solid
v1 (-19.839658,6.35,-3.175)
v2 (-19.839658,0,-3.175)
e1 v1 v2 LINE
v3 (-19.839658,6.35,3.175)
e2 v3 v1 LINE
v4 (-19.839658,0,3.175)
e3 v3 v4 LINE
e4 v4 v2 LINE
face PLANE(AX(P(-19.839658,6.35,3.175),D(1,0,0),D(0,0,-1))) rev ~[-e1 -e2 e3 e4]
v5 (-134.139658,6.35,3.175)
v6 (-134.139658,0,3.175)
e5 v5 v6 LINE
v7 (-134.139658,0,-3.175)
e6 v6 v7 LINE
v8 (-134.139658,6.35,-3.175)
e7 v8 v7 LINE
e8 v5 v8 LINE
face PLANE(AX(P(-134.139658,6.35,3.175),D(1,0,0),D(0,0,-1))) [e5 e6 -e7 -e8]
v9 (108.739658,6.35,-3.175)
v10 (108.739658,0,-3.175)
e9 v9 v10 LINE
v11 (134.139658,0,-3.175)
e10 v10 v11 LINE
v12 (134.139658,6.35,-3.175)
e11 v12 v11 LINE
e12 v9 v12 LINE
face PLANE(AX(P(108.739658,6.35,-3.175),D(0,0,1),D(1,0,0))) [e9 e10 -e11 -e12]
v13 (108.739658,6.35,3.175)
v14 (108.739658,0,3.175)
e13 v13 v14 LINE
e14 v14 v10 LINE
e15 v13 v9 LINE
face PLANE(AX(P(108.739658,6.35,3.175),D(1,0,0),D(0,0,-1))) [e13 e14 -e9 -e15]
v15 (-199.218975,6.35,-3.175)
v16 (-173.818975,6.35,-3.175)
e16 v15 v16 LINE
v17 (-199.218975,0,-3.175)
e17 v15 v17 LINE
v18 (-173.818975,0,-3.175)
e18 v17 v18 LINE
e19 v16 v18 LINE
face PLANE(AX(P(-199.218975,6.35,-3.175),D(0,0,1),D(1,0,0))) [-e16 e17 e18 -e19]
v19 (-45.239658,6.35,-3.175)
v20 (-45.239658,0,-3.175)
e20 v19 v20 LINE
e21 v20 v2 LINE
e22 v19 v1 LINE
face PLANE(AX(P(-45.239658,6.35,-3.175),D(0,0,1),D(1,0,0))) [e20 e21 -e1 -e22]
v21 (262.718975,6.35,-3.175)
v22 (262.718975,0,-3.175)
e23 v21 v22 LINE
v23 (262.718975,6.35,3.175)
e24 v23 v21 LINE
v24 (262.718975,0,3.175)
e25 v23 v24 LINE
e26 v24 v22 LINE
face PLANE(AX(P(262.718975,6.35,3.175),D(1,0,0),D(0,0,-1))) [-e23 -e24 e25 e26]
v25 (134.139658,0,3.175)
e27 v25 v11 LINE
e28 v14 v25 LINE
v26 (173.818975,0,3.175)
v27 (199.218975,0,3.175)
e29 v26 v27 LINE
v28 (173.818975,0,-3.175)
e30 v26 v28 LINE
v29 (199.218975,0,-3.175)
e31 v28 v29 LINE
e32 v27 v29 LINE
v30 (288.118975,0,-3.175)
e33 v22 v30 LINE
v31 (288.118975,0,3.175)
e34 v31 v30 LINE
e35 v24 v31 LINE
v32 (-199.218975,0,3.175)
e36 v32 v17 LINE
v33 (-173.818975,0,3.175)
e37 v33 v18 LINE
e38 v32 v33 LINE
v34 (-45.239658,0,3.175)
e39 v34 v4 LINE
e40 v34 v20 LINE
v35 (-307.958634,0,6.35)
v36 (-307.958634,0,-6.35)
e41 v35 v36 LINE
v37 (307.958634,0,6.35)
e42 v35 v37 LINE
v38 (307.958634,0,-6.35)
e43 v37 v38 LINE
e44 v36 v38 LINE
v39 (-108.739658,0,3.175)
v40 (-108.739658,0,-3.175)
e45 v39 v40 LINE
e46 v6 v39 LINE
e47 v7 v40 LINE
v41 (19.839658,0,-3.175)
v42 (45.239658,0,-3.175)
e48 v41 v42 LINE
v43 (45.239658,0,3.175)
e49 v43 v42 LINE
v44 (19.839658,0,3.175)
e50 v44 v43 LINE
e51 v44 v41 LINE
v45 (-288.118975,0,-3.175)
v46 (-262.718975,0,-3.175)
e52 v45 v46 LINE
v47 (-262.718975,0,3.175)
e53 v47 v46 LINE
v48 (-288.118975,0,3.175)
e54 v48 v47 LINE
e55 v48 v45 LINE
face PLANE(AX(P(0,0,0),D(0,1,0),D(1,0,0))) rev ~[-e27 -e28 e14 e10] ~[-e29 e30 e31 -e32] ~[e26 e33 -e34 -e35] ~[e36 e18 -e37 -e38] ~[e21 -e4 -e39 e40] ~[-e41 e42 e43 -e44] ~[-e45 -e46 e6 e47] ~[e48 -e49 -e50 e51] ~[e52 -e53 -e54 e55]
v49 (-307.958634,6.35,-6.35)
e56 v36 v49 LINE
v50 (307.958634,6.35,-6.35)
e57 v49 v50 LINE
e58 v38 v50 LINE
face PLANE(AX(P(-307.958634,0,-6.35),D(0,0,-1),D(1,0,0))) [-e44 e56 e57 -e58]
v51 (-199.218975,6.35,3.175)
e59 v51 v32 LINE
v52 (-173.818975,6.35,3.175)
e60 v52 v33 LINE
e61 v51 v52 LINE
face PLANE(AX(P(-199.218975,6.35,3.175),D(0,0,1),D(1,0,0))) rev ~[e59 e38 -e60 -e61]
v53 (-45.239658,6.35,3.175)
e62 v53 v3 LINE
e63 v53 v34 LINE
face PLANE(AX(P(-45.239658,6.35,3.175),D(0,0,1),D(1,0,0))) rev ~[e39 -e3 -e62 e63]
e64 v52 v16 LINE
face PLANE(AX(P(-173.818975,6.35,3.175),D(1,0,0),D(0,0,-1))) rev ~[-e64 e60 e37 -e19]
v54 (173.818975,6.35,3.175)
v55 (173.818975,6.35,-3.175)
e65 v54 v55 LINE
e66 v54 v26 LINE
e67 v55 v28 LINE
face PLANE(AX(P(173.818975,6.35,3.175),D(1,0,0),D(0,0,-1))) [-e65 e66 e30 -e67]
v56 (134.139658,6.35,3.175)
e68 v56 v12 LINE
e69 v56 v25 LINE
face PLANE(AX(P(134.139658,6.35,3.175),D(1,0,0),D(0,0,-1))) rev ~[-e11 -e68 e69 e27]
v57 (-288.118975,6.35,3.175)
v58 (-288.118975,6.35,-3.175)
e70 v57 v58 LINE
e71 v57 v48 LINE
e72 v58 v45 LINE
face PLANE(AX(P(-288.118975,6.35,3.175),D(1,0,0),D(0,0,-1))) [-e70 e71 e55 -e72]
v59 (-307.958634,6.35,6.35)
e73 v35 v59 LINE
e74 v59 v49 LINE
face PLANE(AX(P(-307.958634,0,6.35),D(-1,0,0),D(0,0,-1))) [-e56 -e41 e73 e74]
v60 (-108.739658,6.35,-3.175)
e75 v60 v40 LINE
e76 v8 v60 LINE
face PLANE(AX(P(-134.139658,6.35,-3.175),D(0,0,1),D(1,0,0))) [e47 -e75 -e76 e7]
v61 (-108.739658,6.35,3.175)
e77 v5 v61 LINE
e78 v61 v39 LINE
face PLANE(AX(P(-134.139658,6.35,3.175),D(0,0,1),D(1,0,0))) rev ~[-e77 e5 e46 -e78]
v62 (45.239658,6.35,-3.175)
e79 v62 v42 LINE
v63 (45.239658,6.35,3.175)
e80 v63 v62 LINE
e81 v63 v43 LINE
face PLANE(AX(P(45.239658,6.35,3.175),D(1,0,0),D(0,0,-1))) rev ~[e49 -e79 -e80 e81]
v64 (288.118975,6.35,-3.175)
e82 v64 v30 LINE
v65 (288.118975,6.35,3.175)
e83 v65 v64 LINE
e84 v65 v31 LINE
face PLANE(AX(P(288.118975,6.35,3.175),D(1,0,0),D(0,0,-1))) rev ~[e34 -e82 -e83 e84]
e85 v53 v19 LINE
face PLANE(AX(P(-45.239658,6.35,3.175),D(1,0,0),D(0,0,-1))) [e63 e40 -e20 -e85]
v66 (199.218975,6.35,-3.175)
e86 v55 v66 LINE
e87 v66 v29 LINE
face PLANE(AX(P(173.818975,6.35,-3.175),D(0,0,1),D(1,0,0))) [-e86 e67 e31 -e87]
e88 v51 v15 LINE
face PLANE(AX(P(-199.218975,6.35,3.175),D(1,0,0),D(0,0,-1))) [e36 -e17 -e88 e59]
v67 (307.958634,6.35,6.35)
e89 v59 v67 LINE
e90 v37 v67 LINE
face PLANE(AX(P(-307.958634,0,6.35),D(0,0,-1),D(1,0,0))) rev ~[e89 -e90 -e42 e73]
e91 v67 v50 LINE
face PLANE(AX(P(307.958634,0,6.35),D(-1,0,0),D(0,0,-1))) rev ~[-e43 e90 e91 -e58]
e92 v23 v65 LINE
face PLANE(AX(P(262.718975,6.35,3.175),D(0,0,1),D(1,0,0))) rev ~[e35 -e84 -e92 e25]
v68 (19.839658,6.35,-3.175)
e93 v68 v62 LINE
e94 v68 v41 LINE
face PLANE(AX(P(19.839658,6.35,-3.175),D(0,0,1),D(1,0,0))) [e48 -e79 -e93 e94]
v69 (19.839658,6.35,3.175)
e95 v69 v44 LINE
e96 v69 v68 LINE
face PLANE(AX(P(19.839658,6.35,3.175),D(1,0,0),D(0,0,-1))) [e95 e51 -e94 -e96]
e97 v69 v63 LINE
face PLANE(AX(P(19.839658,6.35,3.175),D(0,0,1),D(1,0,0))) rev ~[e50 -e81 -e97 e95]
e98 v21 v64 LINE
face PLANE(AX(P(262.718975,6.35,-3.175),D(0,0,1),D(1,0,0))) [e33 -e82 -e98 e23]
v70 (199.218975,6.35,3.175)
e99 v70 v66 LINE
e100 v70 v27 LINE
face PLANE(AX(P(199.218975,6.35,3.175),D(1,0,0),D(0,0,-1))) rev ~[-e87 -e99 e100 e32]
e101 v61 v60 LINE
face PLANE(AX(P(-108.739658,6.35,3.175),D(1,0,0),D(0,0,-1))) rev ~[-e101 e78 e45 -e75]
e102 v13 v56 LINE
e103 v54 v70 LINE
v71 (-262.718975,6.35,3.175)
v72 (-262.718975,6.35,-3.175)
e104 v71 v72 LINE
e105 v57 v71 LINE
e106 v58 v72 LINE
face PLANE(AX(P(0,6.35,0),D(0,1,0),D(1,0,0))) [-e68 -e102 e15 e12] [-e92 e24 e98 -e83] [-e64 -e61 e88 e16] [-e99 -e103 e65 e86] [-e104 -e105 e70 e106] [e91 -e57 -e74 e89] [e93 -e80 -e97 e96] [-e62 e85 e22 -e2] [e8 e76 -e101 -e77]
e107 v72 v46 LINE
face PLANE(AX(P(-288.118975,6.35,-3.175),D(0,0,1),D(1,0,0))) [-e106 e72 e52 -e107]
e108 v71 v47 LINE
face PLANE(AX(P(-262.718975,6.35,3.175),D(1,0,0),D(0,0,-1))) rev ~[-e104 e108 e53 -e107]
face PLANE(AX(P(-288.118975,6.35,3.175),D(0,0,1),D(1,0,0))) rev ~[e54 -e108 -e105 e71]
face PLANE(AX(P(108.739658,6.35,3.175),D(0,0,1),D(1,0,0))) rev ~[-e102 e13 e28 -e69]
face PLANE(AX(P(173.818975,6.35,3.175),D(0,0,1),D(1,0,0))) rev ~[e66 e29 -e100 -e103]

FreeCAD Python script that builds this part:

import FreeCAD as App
import Part
import Sketcher

V = App.Vector
Q = App.Units.Quantity

doc = App.newDocument("Part")
params = doc.addObject("Spreadsheet::Sheet", "Params")
for row, (alias, value) in enumerate([
    ("sketch1_height", "0.5 in"),
    ("pad1_length", "0.25 in"),
    ("sketch2_width", "1 in"),
    ("sketch2_height", "0.25 in"),
    ("linearpattern_pitch", "307.958634 mm"),
    ("linearpattern2_pitch", "307.958634 mm"),
], start=1):
    params.set(f"A{row}", alias)
    params.set(f"B{row}", "=" + value)
    params.setAlias(f"B{row}", alias)

body = doc.addObject("PartDesign::Body", "Body")

# Sketch on XZ plane
sketch1 = body.newObject("Sketcher::SketchObject", "Sketch")
sketch1.AttachmentSupport = (doc.getObject("XZ_Plane"), [""])
sketch1.MapMode = "FlatFace"
sketch1.addGeometry([
    Part.LineSegment(V(-307.958634, -6.35, 0), V(-307.958634, 6.35, 0)),
    Part.LineSegment(V(-307.958634, 6.35, 0), V(307.958634, 6.35, 0)),
    Part.LineSegment(V(307.958634, 6.35, 0), V(307.958634, -6.35, 0)),
    Part.LineSegment(V(307.958634, -6.35, 0), V(-307.958634, -6.35, 0)),
], False)
sketch1.addConstraint([
    Sketcher.Constraint("Coincident", 0, 2, 1, 1),
    Sketcher.Constraint("Coincident", 1, 2, 2, 1),
    Sketcher.Constraint("Coincident", 2, 2, 3, 1),
    Sketcher.Constraint("Coincident", 3, 2, 0, 1),
    Sketcher.Constraint("Vertical", 0),
    Sketcher.Constraint("Horizontal", 1),
    Sketcher.Constraint("Vertical", 2),
    Sketcher.Constraint("Horizontal", 3),
    Sketcher.Constraint("Symmetric", 0, 2, 2, 2, -1, 1),
    Sketcher.Constraint("DistanceY", 0, 1, 0, 2, Q("0.5 in")),
    Sketcher.Constraint("DistanceX", 1, 1, 1, 2, Q("615.917268 mm")),
])
sketch1.setExpression("Constraints[9]", "Params.sketch1_height")
pad1 = body.newObject("PartDesign::Pad", "Pad")
pad1.Profile = sketch1
pad1.setExpression("Length", "Params.pad1_length")
pad1.Reversed = True

# Sketch on XZ plane
sketch2 = body.newObject("Sketcher::SketchObject", "Sketch001")
sketch2.AttachmentSupport = (doc.getObject("XZ_Plane"), [""])
sketch2.MapMode = "FlatFace"
sketch2.AttachmentOffset = App.Placement(V(0, 0, -0.25 * 25.4), App.Rotation())
sketch2.addGeometry([
    Part.LineSegment(V(-45.239658, -3.175, 0), V(-45.239658, 3.175, 0)),  # 0
    Part.LineSegment(V(-45.239658, 3.175, 0), V(-19.839658, 3.175, 0)),  # 1
    Part.LineSegment(V(-19.839658, 3.175, 0), V(-19.839658, -3.175, 0)),  # 2
    Part.LineSegment(V(-19.839658, -3.175, 0), V(-45.239658, -3.175, 0)),  # 3
    Part.LineSegment(V(19.839658, -3.175, 0), V(19.839658, 3.175, 0)),  # 4
    Part.LineSegment(V(19.839658, 3.175, 0), V(45.239658, 3.175, 0)),  # 5
    Part.LineSegment(V(45.239658, 3.175, 0), V(45.239658, -3.175, 0)),  # 6
    Part.LineSegment(V(45.239658, -3.175, 0), V(19.839658, -3.175, 0)),  # 7
    Part.LineSegment(V(-134.139658, -3.175, 0), V(-134.139658, 3.175, 0)),  # 8
    Part.LineSegment(V(-134.139658, 3.175, 0), V(-108.739658, 3.175, 0)),  # 9
    Part.LineSegment(V(-108.739658, 3.175, 0), V(-108.739658, -3.175, 0)),  # 10
    Part.LineSegment(V(-108.739658, -3.175, 0), V(-134.139658, -3.175, 0)),  # 11
    Part.LineSegment(V(108.739658, -3.175, 0), V(108.739658, 3.175, 0)),  # 12
    Part.LineSegment(V(108.739658, 3.175, 0), V(134.139658, 3.175, 0)),  # 13
    Part.LineSegment(V(134.139658, 3.175, 0), V(134.139658, -3.175, 0)),  # 14
    Part.LineSegment(V(134.139658, -3.175, 0), V(108.739658, -3.175, 0)),  # 15
], False)
sketch2.addConstraint([
    Sketcher.Constraint("Coincident", 0, 2, 1, 1),
    Sketcher.Constraint("Coincident", 1, 2, 2, 1),
    Sketcher.Constraint("Coincident", 2, 2, 3, 1),
    Sketcher.Constraint("Coincident", 3, 2, 0, 1),
    Sketcher.Constraint("Coincident", 4, 2, 5, 1),
    Sketcher.Constraint("Coincident", 5, 2, 6, 1),
    Sketcher.Constraint("Coincident", 6, 2, 7, 1),
    Sketcher.Constraint("Coincident", 7, 2, 4, 1),
    Sketcher.Constraint("Coincident", 8, 2, 9, 1),
    Sketcher.Constraint("Coincident", 9, 2, 10, 1),
    Sketcher.Constraint("Coincident", 10, 2, 11, 1),
    Sketcher.Constraint("Coincident", 11, 2, 8, 1),
    Sketcher.Constraint("Coincident", 12, 2, 13, 1),
    Sketcher.Constraint("Coincident", 13, 2, 14, 1),
    Sketcher.Constraint("Coincident", 14, 2, 15, 1),
    Sketcher.Constraint("Coincident", 15, 2, 12, 1),
    Sketcher.Constraint("Vertical", 0),
    Sketcher.Constraint("Horizontal", 1),
    Sketcher.Constraint("Vertical", 2),
    Sketcher.Constraint("Horizontal", 3),
    Sketcher.Constraint("Vertical", 4),
    Sketcher.Constraint("Horizontal", 5),
    Sketcher.Constraint("Vertical", 6),
    Sketcher.Constraint("Horizontal", 7),
    Sketcher.Constraint("Vertical", 8),
    Sketcher.Constraint("Horizontal", 9),
    Sketcher.Constraint("Vertical", 10),
    Sketcher.Constraint("Horizontal", 11),
    Sketcher.Constraint("Vertical", 12),
    Sketcher.Constraint("Horizontal", 13),
    Sketcher.Constraint("Vertical", 14),
    Sketcher.Constraint("Horizontal", 15),
    Sketcher.Constraint("Symmetric", 2, 2, 4, 2, -1, 1),
    Sketcher.Constraint("Symmetric", 0, 2, 6, 2, -1, 1),
    Sketcher.Constraint("Symmetric", 10, 2, 12, 2, -1, 1),
    Sketcher.Constraint("Symmetric", 8, 2, 14, 2, -1, 1),
    Sketcher.Constraint("Horizontal", 1, 2, 4, 2),
    Sketcher.Constraint("Horizontal", 5, 2, 8, 2),
    Sketcher.Constraint("Horizontal", 7, 2, 10, 2),
    Sketcher.Constraint("Equal", 7, 9),
    Sketcher.Constraint("DistanceX", 1, 1, 1, 2, Q("1 in")),
    Sketcher.Constraint("DistanceY", 0, 1, 0, 2, Q("0.25 in")),
    Sketcher.Constraint("DistanceX", 8, 2, 0, 2, Q("3.5 in")),
    Sketcher.Constraint("DistanceX", 0, 2, -1, 1, Q("45.239658 mm")),
])
sketch2.setExpression("Constraints[40]", "Params.sketch2_width")
sketch2.setExpression("Constraints[41]", "Params.sketch2_height")
pocket1 = body.newObject("PartDesign::Pocket", "Pocket")
pocket1.Profile = sketch2
pocket1.Type = "ThroughAll"
pocket1.Reversed = True
doc.recompute()

linearpattern = body.newObject("PartDesign::LinearPattern", "LinearPattern")
linearpattern.Originals = [pocket1]
linearpattern.Direction = (doc.getObject("X_Axis"), [""])
linearpattern.Mode = "offset"
linearpattern.setExpression("Offset", "Params.linearpattern_pitch")
linearpattern.Occurrences = 2
body.Tip = linearpattern
doc.recompute()

linearpattern2 = body.newObject("PartDesign::LinearPattern", "LinearPattern001")
linearpattern2.Originals = [pocket1]
linearpattern2.Direction = (doc.getObject("X_Axis"), [""])
linearpattern2.Mode = "offset"
linearpattern2.setExpression("Offset", "Params.linearpattern2_pitch")
linearpattern2.Occurrences = 2
linearpattern2.Reversed = True
body.Tip = linearpattern2

doc.recompute()
